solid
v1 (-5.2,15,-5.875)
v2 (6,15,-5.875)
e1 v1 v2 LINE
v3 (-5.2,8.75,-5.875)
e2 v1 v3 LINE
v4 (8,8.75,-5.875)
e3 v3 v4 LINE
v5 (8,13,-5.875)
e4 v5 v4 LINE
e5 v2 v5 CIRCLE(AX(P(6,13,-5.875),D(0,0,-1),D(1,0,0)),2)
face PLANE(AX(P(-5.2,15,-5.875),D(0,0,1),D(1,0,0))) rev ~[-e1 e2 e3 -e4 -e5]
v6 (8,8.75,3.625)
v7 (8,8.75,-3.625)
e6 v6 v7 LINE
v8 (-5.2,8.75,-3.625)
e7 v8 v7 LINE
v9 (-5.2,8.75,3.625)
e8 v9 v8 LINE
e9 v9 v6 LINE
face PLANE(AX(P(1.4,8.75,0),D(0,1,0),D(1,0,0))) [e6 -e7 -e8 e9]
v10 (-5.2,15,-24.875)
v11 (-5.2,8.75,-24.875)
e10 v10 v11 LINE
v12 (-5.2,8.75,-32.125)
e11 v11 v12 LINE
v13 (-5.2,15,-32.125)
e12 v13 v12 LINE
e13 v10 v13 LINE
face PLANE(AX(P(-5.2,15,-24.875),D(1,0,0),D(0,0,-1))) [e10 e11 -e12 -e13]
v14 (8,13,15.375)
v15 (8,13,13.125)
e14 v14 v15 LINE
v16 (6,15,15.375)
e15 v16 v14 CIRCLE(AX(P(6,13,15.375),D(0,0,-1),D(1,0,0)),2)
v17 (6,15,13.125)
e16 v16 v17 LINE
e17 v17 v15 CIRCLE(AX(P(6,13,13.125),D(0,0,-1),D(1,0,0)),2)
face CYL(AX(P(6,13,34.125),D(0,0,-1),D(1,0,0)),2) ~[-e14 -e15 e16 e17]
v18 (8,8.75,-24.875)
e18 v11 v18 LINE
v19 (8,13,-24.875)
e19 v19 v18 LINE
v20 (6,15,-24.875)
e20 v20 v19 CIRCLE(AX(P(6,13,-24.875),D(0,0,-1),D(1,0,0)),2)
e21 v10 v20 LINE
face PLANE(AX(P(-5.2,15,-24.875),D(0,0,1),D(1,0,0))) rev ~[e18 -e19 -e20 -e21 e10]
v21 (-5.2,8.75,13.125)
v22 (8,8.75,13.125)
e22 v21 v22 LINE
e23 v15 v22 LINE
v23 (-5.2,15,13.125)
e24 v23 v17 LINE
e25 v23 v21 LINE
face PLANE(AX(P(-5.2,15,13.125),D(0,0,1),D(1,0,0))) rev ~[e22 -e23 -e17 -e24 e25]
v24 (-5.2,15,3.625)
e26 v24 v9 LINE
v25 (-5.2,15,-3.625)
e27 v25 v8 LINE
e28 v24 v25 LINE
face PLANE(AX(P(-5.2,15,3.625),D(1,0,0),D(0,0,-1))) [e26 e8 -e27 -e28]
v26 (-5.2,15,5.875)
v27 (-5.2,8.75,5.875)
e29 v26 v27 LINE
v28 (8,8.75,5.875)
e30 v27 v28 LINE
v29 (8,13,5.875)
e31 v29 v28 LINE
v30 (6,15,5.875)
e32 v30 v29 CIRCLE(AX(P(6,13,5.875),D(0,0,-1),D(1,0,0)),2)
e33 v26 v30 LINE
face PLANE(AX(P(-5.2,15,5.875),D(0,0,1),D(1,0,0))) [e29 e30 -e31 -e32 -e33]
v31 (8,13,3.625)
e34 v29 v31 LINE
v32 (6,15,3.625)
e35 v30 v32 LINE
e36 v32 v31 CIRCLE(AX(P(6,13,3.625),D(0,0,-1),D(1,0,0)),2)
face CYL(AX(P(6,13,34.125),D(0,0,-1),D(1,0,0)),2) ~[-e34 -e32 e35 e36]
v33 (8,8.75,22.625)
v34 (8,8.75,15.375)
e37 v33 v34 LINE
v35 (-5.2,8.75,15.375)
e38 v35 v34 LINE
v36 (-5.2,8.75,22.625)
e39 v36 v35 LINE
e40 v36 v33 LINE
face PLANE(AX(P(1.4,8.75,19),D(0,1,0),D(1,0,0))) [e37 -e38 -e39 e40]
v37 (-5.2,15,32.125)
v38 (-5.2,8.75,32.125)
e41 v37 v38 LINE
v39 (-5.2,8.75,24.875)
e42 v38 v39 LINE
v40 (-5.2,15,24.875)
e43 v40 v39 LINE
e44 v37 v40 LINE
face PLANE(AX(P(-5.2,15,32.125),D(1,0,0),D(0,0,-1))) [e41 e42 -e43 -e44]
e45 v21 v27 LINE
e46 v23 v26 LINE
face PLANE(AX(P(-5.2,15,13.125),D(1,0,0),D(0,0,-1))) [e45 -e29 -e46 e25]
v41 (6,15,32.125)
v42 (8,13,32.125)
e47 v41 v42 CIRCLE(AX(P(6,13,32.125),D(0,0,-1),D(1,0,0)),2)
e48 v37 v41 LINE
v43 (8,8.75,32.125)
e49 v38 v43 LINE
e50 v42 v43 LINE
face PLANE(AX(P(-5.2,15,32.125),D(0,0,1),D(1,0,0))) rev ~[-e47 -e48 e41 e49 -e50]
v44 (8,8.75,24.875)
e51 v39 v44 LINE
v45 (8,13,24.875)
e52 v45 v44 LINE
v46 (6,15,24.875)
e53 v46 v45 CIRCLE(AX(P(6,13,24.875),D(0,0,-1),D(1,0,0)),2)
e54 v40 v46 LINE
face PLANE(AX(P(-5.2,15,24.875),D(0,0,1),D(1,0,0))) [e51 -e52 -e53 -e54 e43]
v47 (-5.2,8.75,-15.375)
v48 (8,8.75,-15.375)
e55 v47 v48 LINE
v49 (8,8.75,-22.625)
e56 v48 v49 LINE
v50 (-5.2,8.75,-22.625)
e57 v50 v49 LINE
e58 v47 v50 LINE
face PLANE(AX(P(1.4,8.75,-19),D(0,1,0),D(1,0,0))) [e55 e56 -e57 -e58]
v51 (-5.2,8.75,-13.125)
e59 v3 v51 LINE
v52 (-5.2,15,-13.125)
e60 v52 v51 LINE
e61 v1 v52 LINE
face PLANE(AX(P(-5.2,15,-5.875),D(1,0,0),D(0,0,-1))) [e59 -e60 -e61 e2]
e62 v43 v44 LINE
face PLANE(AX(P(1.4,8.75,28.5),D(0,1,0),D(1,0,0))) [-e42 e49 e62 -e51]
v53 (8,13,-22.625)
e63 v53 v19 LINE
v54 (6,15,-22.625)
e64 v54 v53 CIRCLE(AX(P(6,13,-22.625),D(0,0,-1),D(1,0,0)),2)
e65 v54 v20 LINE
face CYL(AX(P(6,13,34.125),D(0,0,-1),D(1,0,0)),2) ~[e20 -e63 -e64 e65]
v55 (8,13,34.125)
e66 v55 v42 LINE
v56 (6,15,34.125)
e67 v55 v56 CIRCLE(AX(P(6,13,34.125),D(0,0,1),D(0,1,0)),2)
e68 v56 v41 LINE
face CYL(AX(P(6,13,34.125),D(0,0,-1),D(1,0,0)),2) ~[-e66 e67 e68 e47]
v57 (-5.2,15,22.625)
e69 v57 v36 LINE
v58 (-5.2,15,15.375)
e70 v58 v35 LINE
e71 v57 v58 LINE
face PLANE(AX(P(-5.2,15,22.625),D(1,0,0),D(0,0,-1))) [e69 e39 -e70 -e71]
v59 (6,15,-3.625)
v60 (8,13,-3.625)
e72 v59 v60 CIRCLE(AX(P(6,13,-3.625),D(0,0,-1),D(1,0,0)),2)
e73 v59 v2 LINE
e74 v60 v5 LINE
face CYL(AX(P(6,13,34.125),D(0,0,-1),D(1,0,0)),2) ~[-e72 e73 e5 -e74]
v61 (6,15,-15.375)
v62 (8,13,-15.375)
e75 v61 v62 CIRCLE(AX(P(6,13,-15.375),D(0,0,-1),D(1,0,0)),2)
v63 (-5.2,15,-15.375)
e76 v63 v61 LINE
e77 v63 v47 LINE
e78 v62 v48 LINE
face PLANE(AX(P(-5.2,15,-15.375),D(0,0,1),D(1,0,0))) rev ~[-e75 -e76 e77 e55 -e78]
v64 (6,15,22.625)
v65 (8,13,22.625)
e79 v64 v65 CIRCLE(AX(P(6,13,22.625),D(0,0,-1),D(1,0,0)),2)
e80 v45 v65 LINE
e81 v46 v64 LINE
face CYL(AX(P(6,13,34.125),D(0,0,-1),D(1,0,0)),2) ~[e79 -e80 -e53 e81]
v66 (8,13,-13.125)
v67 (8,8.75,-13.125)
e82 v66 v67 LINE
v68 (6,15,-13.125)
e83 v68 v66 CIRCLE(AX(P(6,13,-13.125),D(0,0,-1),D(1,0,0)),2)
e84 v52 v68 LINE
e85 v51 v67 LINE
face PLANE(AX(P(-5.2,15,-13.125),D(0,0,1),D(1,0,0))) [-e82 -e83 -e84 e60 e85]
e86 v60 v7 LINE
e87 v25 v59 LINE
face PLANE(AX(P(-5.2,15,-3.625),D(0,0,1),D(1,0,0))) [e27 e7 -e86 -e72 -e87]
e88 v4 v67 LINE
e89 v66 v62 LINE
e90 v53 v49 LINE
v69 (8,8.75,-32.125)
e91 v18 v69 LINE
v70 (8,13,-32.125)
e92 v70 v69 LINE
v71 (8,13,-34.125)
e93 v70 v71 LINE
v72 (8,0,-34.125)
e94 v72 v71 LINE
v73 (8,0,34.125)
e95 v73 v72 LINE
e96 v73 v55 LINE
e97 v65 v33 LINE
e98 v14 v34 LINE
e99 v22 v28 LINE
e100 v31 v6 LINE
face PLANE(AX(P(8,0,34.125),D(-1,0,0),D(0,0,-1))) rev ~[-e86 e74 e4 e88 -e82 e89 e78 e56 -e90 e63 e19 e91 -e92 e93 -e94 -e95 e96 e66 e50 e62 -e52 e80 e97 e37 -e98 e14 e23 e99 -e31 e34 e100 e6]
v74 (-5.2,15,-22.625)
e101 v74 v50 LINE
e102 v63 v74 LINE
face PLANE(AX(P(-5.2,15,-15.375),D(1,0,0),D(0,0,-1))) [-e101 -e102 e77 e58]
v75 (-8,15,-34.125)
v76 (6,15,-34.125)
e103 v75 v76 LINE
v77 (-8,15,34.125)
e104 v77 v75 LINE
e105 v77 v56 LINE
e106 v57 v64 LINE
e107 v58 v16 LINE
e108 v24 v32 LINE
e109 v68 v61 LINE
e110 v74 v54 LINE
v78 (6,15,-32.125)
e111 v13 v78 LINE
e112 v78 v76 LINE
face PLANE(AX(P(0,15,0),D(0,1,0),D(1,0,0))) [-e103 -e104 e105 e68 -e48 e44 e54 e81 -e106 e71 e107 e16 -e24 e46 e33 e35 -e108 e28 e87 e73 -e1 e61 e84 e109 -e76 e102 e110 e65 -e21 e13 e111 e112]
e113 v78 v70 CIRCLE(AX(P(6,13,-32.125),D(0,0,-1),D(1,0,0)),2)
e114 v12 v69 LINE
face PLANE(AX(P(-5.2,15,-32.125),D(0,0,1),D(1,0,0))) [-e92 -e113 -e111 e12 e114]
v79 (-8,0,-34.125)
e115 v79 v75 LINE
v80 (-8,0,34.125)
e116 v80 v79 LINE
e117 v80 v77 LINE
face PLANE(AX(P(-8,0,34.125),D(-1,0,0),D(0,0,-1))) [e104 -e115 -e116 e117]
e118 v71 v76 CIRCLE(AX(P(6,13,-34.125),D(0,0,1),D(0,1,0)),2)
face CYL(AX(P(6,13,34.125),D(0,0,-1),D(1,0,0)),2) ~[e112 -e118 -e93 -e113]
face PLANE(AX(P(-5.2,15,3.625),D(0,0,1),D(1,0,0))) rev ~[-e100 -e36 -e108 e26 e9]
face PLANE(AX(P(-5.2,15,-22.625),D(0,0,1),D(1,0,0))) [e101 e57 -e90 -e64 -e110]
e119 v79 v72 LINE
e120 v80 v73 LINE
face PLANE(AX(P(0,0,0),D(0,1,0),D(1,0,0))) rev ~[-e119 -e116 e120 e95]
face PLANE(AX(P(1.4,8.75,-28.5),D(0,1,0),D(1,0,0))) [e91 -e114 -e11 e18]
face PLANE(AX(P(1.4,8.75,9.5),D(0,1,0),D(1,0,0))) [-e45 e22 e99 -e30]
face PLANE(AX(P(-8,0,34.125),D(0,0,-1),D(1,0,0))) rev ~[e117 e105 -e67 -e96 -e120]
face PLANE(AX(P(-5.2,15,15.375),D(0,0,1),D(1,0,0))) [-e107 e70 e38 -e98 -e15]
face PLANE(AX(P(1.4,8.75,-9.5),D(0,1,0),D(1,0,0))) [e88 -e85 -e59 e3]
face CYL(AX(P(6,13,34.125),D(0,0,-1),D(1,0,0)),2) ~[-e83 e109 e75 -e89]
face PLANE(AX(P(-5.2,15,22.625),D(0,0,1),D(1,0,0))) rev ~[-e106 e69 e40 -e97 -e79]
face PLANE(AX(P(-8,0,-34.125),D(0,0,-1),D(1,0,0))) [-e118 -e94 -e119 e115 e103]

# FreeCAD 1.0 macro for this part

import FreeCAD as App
import Part
import Sketcher
from FreeCAD import Vector
Q = App.Units.Quantity


def edges_at(feature, points):
    """Names of the edges that pass closest to the given points."""
    edges = feature.Shape.Edges
    near = lambda p: min(range(len(edges)), key=lambda i: edges[i].distToShape(Part.Vertex(*p))[0])
    return sorted({f"Edge{near(p) + 1}" for p in points})

doc = App.newDocument("Part")
body = doc.addObject("PartDesign::Body", "Body")

# Sketch on XZ plane
sketch1 = doc.addObject("Sketcher::SketchObject", "Sketch")
body.addObject(sketch1)
sketch1.AttachmentSupport = (doc.XZ_Plane, [""])
sketch1.MapMode = "FlatFace"
sketch1.addGeometry([
    Part.LineSegment(Vector(-8, -34, 0), Vector(-8, 34, 0)),
    Part.LineSegment(Vector(-8, 34, 0), Vector(8, 34, 0)),
    Part.LineSegment(Vector(8, 34, 0), Vector(8, -34, 0)),
    Part.LineSegment(Vector(8, -34, 0), Vector(-8, -34, 0)),
], False)
sketch1.addConstraint([
    Sketcher.Constraint("Coincident", 0, 2, 1, 1),
    Sketcher.Constraint("Coincident", 1, 2, 2, 1),
    Sketcher.Constraint("Coincident", 2, 2, 3, 1),
    Sketcher.Constraint("Coincident", 3, 2, 0, 1),
    Sketcher.Constraint("Vertical", 0),
    Sketcher.Constraint("Horizontal", 1),
    Sketcher.Constraint("Vertical", 2),
    Sketcher.Constraint("Horizontal", 3),
    Sketcher.Constraint("Symmetric", 0, 2, 2, 2, -1, 1),
    Sketcher.Constraint("DistanceX", 1, 1, 1, 2, Q("16 mm")),
    Sketcher.Constraint("DistanceY", 0, 1, 0, 2, Q("68.25 mm")),
])
pad1 = doc.addObject("PartDesign::Pad", "Pad")
body.addObject(pad1)
pad1.Profile = sketch1
pad1.Length = 15
pad1.Reversed = True
doc.recompute()

fillet = doc.addObject("PartDesign::Fillet", "Fillet")
body.addObject(fillet)
fillet.Base = (pad1, edges_at(pad1, [(8, 15, 0)]))
fillet.Radius = 2

# Sketch on XZ plane
sketch2 = doc.addObject("Sketcher::SketchObject", "Sketch001")
body.addObject(sketch2)
sketch2.AttachmentSupport = (doc.XZ_Plane, [""])
sketch2.MapMode = "FlatFace"
sketch2.AttachmentOffset = App.Placement(Vector(0, 0, -15), App.Rotation())
sketch2.addGeometry([
    Part.LineSegment(Vector(-5, 25, 0), Vector(-5, 32, 0)),
    Part.LineSegment(Vector(-5, 32, 0), Vector(8, 32, 0)),
    Part.LineSegment(Vector(8, 32, 0), Vector(8, 25, 0)),
    Part.LineSegment(Vector(8, 25, 0), Vector(-5, 25, 0)),
], False)
sketch2.addConstraint([
    Sketcher.Constraint("Coincident", 0, 2, 1, 1),
    Sketcher.Constraint("Coincident", 1, 2, 2, 1),
    Sketcher.Constraint("Coincident", 2, 2, 3, 1),
    Sketcher.Constraint("Coincident", 3, 2, 0, 1),
    Sketcher.Constraint("Vertical", 0),
    Sketcher.Constraint("Horizontal", 1),
    Sketcher.Constraint("Vertical", 2),
    Sketcher.Constraint("Horizontal", 3),
    Sketcher.Constraint("DistanceX", 1, 1, 1, 2, Q("13.2 mm")),
    Sketcher.Constraint("DistanceX", -1, 1, 1, 2, Q("8 mm")),
    Sketcher.Constraint("DistanceY", 0, 1, 0, 2, Q("7.25 mm")),
    Sketcher.Constraint("DistanceY", -1, 1, 0, 2, Q("32.125 mm")),
])
pocket1 = doc.addObject("PartDesign::Pocket", "Pocket")
body.addObject(pocket1)
pocket1.Profile = sketch2
pocket1.Length = 6.25
pocket1.Reversed = True
doc.recompute()

linearpattern = doc.addObject("PartDesign::LinearPattern", "LinearPattern")
body.addObject(linearpattern)
linearpattern.Originals = [pocket1]
linearpattern.Direction = (doc.Z_Axis, [""])
linearpattern.Mode = "offset"
linearpattern.Offset = 9.5
linearpattern.Occurrences = 7
linearpattern.Reversed = True
body.Tip = linearpattern

doc.recompute()
